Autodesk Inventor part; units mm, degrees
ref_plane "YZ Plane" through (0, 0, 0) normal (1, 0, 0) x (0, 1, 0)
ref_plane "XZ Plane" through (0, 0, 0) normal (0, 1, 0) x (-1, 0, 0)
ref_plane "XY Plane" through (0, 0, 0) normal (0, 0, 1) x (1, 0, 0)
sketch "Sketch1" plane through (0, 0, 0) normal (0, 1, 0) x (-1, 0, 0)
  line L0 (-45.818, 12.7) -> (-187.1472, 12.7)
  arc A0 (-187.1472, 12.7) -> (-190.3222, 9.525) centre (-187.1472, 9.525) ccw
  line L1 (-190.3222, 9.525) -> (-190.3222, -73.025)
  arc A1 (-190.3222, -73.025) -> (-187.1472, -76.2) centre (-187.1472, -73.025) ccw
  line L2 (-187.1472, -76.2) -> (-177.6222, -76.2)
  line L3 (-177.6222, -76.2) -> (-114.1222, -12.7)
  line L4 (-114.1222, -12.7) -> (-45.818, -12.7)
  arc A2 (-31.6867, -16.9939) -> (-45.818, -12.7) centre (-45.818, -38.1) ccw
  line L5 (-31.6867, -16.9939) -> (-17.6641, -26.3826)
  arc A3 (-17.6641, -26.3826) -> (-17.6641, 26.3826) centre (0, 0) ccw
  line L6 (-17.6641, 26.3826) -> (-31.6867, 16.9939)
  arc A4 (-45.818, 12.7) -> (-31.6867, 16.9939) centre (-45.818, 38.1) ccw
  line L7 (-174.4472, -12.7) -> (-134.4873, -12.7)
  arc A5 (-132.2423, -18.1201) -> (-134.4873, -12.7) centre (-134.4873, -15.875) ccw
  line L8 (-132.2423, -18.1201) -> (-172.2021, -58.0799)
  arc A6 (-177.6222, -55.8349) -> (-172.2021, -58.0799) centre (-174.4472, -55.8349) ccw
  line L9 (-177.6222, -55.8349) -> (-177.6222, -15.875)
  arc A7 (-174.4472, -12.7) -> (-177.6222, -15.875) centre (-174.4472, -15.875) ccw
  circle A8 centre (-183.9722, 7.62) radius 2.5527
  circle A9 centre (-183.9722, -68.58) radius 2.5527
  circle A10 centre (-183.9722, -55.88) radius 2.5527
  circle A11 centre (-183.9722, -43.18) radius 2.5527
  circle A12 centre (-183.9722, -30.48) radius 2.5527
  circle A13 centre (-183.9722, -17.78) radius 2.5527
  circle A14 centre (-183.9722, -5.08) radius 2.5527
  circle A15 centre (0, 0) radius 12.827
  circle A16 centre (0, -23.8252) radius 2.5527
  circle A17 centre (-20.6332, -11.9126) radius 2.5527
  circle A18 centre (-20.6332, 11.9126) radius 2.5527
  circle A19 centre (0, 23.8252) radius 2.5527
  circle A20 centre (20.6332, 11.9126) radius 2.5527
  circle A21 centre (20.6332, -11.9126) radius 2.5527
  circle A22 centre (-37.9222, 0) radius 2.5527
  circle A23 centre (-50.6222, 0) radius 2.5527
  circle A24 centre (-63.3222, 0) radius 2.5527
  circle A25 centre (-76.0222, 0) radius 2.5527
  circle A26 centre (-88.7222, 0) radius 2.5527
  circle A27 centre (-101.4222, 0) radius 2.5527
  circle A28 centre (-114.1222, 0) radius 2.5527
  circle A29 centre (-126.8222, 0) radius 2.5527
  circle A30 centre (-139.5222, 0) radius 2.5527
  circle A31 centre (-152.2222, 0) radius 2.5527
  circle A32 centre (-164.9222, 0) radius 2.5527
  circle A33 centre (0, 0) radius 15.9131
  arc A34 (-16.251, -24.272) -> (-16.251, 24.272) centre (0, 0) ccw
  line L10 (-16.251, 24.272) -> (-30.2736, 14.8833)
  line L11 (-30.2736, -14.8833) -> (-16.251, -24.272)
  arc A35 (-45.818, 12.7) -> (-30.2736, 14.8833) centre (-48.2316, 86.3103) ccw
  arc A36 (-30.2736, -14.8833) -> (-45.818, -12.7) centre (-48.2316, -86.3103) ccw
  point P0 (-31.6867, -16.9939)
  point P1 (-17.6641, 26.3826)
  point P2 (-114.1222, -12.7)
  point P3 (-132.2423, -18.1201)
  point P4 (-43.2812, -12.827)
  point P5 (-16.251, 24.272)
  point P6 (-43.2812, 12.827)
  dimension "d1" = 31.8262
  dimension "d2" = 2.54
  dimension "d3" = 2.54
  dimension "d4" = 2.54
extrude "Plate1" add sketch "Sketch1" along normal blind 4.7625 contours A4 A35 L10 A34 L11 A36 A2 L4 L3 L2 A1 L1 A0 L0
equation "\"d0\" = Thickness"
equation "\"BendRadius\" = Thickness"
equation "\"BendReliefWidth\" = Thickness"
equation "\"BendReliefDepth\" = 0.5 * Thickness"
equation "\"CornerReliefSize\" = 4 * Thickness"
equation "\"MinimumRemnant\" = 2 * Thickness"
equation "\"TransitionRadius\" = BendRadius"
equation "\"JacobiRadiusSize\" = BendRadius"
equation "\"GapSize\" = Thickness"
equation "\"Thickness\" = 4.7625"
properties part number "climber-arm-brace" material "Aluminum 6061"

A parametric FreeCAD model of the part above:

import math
import FreeCAD as App
import Part
import Sketcher
from FreeCAD import Vector
Q = App.Units.Quantity

doc = App.newDocument("Part")
body = doc.addObject("PartDesign::Body", "Body")

sketch1 = body.newObject("Sketcher::SketchObject", "Sketch")
sketch1.AttachmentSupport = (doc.getObject("XZ_Plane"), [""])
sketch1.MapMode = "FlatFace"
sketch1.addGeometry([
    Part.ArcOfCircle(Part.Circle(Vector(45.818, 38.1, 0), Vector(0, 0, 1), 25.4), math.radians(-95.732179), math.radians(-90)),
    Part.LineSegment(Vector(45.818, 12.7, 0), Vector(187.1472, 12.7, 0)),
    Part.ArcOfCircle(Part.Circle(Vector(187.1472, 9.525, 0), Vector(0, 0, 1), 3.175), math.radians(0), math.radians(90)),
    Part.LineSegment(Vector(190.3222, 9.525, 0), Vector(190.3222, -73.025, 0)),
    Part.ArcOfCircle(Part.Circle(Vector(187.1472, -73.025, 0), Vector(0, 0, 1), 3.175), math.radians(-90), math.radians(0)),
    Part.LineSegment(Vector(187.1472, -76.2, 0), Vector(177.6222, -76.2, 0)),
    Part.LineSegment(Vector(177.6222, -76.2, 0), Vector(114.1222, -12.7, 0)),
    Part.LineSegment(Vector(114.1222, -12.7, 0), Vector(45.818, -12.7, 0)),
    Part.ArcOfCircle(Part.Circle(Vector(45.818, -38.1, 0), Vector(0, 0, 1), 25.400022), math.radians(90), math.radians(95.731909)),
    Part.ArcOfCircle(Part.Circle(Vector(48.231101, -86.307744, 0), Vector(0, 0, 1), 73.647288), math.radians(93.853805), math.radians(104.112767)),
    Part.LineSegment(Vector(30.2736, -14.8833, 0), Vector(16.251, -24.272, 0)),
    Part.ArcOfCircle(Part.Circle(Vector(0, 0, 0), Vector(0, 0, 1), 29.210015), math.radians(56.196231), math.radians(303.803769)),
    Part.LineSegment(Vector(16.251, 24.272, 0), Vector(30.2736, 14.8833, 0)),
    Part.ArcOfCircle(Part.Circle(Vector(48.231824, 86.312894, 0), Vector(0, 0, 1), 73.652459), math.radians(-104.112336), math.radians(-93.85419)),
    Part.Circle(Vector(183.9722, -68.58, 0), Vector(0, 0, 1), 2.5527),
    Part.Circle(Vector(183.9722, -55.88, 0), Vector(0, 0, 1), 2.5527),
    Part.Circle(Vector(183.9722, -43.18, 0), Vector(0, 0, 1), 2.5527),
    Part.ArcOfCircle(Part.Circle(Vector(174.4472, -15.875, 0), Vector(0, 0, 1), 3.175), math.radians(0), math.radians(90)),
    Part.LineSegment(Vector(174.4472, -12.7, 0), Vector(134.4873, -12.7, 0)),
    Part.ArcOfCircle(Part.Circle(Vector(134.4873, -15.875, 0), Vector(0, 0, 1), 3.17498), math.radians(90), math.radians(225.001276)),
    Part.LineSegment(Vector(132.2423, -18.1201, 0), Vector(172.2021, -58.0799, 0)),
    Part.ArcOfCircle(Part.Circle(Vector(174.4472, -55.8349, 0), Vector(0, 0, 1), 3.175), math.radians(-135.001276), math.radians(0)),
    Part.LineSegment(Vector(177.6222, -55.8349, 0), Vector(177.6222, -15.875, 0)),
    Part.Circle(Vector(183.9722, -30.48, 0), Vector(0, 0, 1), 2.5527),
    Part.Circle(Vector(0, -23.8252, 0), Vector(0, 0, 1), 2.5527),
    Part.Circle(Vector(183.9722, -17.78, 0), Vector(0, 0, 1), 2.5527),
    Part.Circle(Vector(183.9722, -5.08, 0), Vector(0, 0, 1), 2.5527),
    Part.Circle(Vector(164.9222, 0, 0), Vector(0, 0, 1), 2.5527),
    Part.Circle(Vector(152.2222, 0, 0), Vector(0, 0, 1), 2.5527),
    Part.Circle(Vector(139.5222, 0, 0), Vector(0, 0, 1), 2.5527),
    Part.Circle(Vector(126.8222, 0, 0), Vector(0, 0, 1), 2.5527),
    Part.Circle(Vector(114.1222, 0, 0), Vector(0, 0, 1), 2.5527),
    Part.Circle(Vector(101.4222, 0, 0), Vector(0, 0, 1), 2.5527),
    Part.Circle(Vector(88.7222, 0, 0), Vector(0, 0, 1), 2.5527),
    Part.Circle(Vector(183.9722, 7.62, 0), Vector(0, 0, 1), 2.5527),
    Part.Circle(Vector(76.0222, 0, 0), Vector(0, 0, 1), 2.5527),
    Part.Circle(Vector(63.3222, 0, 0), Vector(0, 0, 1), 2.5527),
    Part.Circle(Vector(50.6222, 0, 0), Vector(0, 0, 1), 2.5527),
    Part.Circle(Vector(37.9222, 0, 0), Vector(0, 0, 1), 2.5527),
    Part.Circle(Vector(20.6332, -11.9126, 0), Vector(0, 0, 1), 2.5527),
    Part.Circle(Vector(-20.6332, -11.9126, 0), Vector(0, 0, 1), 2.5527),
    Part.Circle(Vector(0, 0, 0), Vector(0, 0, 1), 15.9131),
    Part.Circle(Vector(20.6332, 11.9126, 0), Vector(0, 0, 1), 2.5527),
    Part.Circle(Vector(-20.6332, 11.9126, 0), Vector(0, 0, 1), 2.5527),
    Part.Circle(Vector(0, 23.8252, 0), Vector(0, 0, 1), 2.5527),
], False)
sketch1.addConstraint([
    Sketcher.Constraint("Tangent", 0, 2, 1, 1),
    Sketcher.Constraint("Tangent", 1, 2, 2, 2),
    Sketcher.Constraint("Tangent", 2, 1, 3, 1),
    Sketcher.Constraint("Tangent", 3, 2, 4, 2),
    Sketcher.Constraint("Tangent", 4, 1, 5, 1),
    Sketcher.Constraint("Coincident", 5, 2, 6, 1),
    Sketcher.Constraint("Coincident", 6, 2, 7, 1),
    Sketcher.Constraint("Tangent", 7, 2, 8, 1),
    Sketcher.Constraint("Coincident", 8, 2, 9, 1),
    Sketcher.Constraint("Coincident", 9, 2, 10, 1),
    Sketcher.Constraint("Tangent", 10, 2, 11, 2),
    Sketcher.Constraint("Tangent", 11, 1, 12, 1),
    Sketcher.Constraint("Coincident", 12, 2, 13, 1),
    Sketcher.Constraint("Coincident", 13, 2, 0, 1),
    Sketcher.Constraint("Tangent", 17, 2, 18, 1),
    Sketcher.Constraint("Tangent", 18, 2, 19, 1),
    Sketcher.Constraint("Tangent", 19, 2, 20, 1),
    Sketcher.Constraint("Tangent", 20, 2, 21, 1),
    Sketcher.Constraint("Tangent", 21, 2, 22, 1),
    Sketcher.Constraint("Tangent", 22, 2, 17, 1),
    Sketcher.Constraint("Horizontal", 1),
    Sketcher.Constraint("Vertical", 3),
    Sketcher.Constraint("Horizontal", 5),
    Sketcher.Constraint("Horizontal", 7),
    Sketcher.Constraint("Horizontal", 18),
    Sketcher.Constraint("Vertical", 22),
    Sketcher.Constraint("Coincident", 11, 3, -1, 1),
    Sketcher.Constraint("Coincident", 41, 3, -1, 1),
    Sketcher.Constraint("Equal", 2, 4),
    Sketcher.Constraint("Equal", 0, 8),
    Sketcher.Constraint("Equal", 14, 15),
    Sketcher.Constraint("Equal", 15, 16),
    Sketcher.Constraint("Equal", 4, 17),
    Sketcher.Constraint("Equal", 17, 19),
    Sketcher.Constraint("Equal", 19, 21),
    Sketcher.Constraint("Equal", 16, 23),
    Sketcher.Constraint("Equal", 23, 24),
    Sketcher.Constraint("Equal", 24, 25),
    Sketcher.Constraint("Equal", 25, 26),
    Sketcher.Constraint("Equal", 26, 27),
    Sketcher.Constraint("Equal", 27, 28),
    Sketcher.Constraint("Equal", 28, 29),
    Sketcher.Constraint("Equal", 29, 30),
    Sketcher.Constraint("Equal", 30, 31),
    Sketcher.Constraint("Equal", 31, 32),
    Sketcher.Constraint("Equal", 32, 33),
    Sketcher.Constraint("Equal", 33, 34),
    Sketcher.Constraint("Equal", 34, 35),
    Sketcher.Constraint("Equal", 35, 36),
    Sketcher.Constraint("Equal", 36, 37),
    Sketcher.Constraint("Equal", 37, 38),
    Sketcher.Constraint("Equal", 38, 39),
    Sketcher.Constraint("Equal", 39, 40),
    Sketcher.Constraint("Equal", 40, 42),
    Sketcher.Constraint("Equal", 42, 43),
    Sketcher.Constraint("Equal", 43, 44),
    Sketcher.Constraint("Symmetric", 40, 3, 42, 3, -1, 1),
    Sketcher.Constraint("Symmetric", 39, 3, 43, 3, -1, 1),
    Sketcher.Constraint("Symmetric", 24, 3, 44, 3, -1, 1),
    Sketcher.Constraint("Symmetric", 39, 3, 40, 3, -2),
    Sketcher.Constraint("Symmetric", 0, 3, 8, 3, -1),
    Sketcher.Constraint("Symmetric", 9, 2, 12, 2, -1),
    Sketcher.Constraint("PointOnObject", 24, 3, -2),
    Sketcher.Constraint("PointOnObject", 27, 3, -1),
    Sketcher.Constraint("PointOnObject", 28, 3, -1),
    Sketcher.Constraint("PointOnObject", 29, 3, -1),
    Sketcher.Constraint("PointOnObject", 30, 3, -1),
    Sketcher.Constraint("PointOnObject", 31, 3, -1),
    Sketcher.Constraint("PointOnObject", 32, 3, -1),
    Sketcher.Constraint("PointOnObject", 33, 3, -1),
    Sketcher.Constraint("PointOnObject", 35, 3, -1),
    Sketcher.Constraint("PointOnObject", 36, 3, -1),
    Sketcher.Constraint("PointOnObject", 37, 3, -1),
    Sketcher.Constraint("PointOnObject", 38, 3, -1),
    Sketcher.Constraint("Parallel", 6, 20),
    Sketcher.Constraint("Horizontal", 7, 2, 17, 2),
    Sketcher.Constraint("Vertical", 14, 3, 15, 3),
    Sketcher.Constraint("Vertical", 15, 3, 16, 3),
    Sketcher.Constraint("Vertical", 16, 3, 23, 3),
    Sketcher.Constraint("Vertical", 23, 3, 25, 3),
    Sketcher.Constraint("Vertical", 25, 3, 26, 3),
    Sketcher.Constraint("Vertical", 26, 3, 34, 3),
    Sketcher.Constraint("Vertical", 31, 3, 6, 2),
    Sketcher.Constraint("Vertical", 8, 2, 13, 2),
    Sketcher.Constraint("Vertical", 5, 2, 21, 2),
    Sketcher.Constraint("Equal", 18, 22),
    Sketcher.Constraint("Diameter", 41, Q("1.253 in")),
    Sketcher.Constraint("Radius", 0, Q("1 in")),
    Sketcher.Constraint("Radius", 11, Q("1.15 in")),
    Sketcher.Constraint("Diameter", 14, Q("0.201 in")),
    Sketcher.Constraint("DistanceY", 4, 1, -1, 1, Q("3 in")),
    Sketcher.Constraint("Radius", 2, Q("0.125 in")),
    Sketcher.Constraint("DistanceY", 8, 3, 0, 3, Q("3 in")),
    Sketcher.Constraint("DistanceY", 14, 3, 16, 3, Q("1 in")),
    Sketcher.Constraint("DistanceY", 15, 3, 23, 3, Q("1 in")),
    Sketcher.Constraint("DistanceY", 16, 3, 25, 3, Q("1 in")),
    Sketcher.Constraint("DistanceY", 23, 3, 26, 3, Q("1 in")),
    Sketcher.Constraint("DistanceX", 29, 3, 27, 3, Q("1 in")),
    Sketcher.Constraint("DistanceX", 30, 3, 28, 3, Q("1 in")),
    Sketcher.Constraint("DistanceX", 31, 3, 29, 3, Q("1 in")),
    Sketcher.Constraint("DistanceX", 32, 3, 30, 3, Q("1 in")),
    Sketcher.Constraint("DistanceX", 33, 3, 31, 3, Q("1 in")),
    Sketcher.Constraint("DistanceY", 25, 3, 34, 3, Q("1 in")),
    Sketcher.Constraint("DistanceX", 35, 3, 32, 3, Q("1 in")),
    Sketcher.Constraint("DistanceX", 36, 3, 33, 3, Q("1 in")),
    Sketcher.Constraint("DistanceX", 37, 3, 35, 3, Q("1 in")),
    Sketcher.Constraint("DistanceX", 38, 3, 36, 3, Q("1 in")),
    Sketcher.Constraint("DistanceX", 27, 3, 2, 1, Q("1 in")),
    Sketcher.Constraint("DistanceY", 14, 3, -1, 1, Q("2.7 in")),
    Sketcher.Constraint("DistanceY", 15, 3, -1, 1, Q("2.2 in")),
    Sketcher.Constraint("Radius", 9, Q("2.8995 in")),
    Sketcher.Constraint("Radius", 13, Q("2.8997 in")),
    Sketcher.Constraint("DistanceX", 28, 3, 27, 3, Q("0.5 in")),
    Sketcher.Constraint("DistanceX", 27, 3, 26, 3, Q("0.75 in")),
    Sketcher.Constraint("DistanceX", -1, 1, 2, 3, Q("7.368 in")),
    Sketcher.Constraint("DistanceY", 24, 3, -1, 1, Q("0.938 in")),
    Sketcher.Constraint("DistanceY", 39, 3, -1, 1, Q("0.469 in")),
    Sketcher.Constraint("DistanceY", 8, 2, -1, 1, Q("0.505 in")),
    Sketcher.Constraint("DistanceX", 8, 3, 9, 3, Q("0.095 in")),
    Sketcher.Constraint("Distance", 10, Q("0.6644 in")),
    Sketcher.Constraint("DistanceX", 1, 1, 1, 2, Q("141.3292 mm")),
    Sketcher.Constraint("DistanceX", 18, 2, 18, 1, Q("39.96 mm")),
    Sketcher.Constraint("DistanceX", 40, 3, 8, 3, Q("2.6162 in")),
])
pad1 = body.newObject("PartDesign::Pad", "Pad")
pad1.Profile = sketch1
pad1.Length = Q("0.1875 in")
pad1.Reversed = True

doc.recompute()
